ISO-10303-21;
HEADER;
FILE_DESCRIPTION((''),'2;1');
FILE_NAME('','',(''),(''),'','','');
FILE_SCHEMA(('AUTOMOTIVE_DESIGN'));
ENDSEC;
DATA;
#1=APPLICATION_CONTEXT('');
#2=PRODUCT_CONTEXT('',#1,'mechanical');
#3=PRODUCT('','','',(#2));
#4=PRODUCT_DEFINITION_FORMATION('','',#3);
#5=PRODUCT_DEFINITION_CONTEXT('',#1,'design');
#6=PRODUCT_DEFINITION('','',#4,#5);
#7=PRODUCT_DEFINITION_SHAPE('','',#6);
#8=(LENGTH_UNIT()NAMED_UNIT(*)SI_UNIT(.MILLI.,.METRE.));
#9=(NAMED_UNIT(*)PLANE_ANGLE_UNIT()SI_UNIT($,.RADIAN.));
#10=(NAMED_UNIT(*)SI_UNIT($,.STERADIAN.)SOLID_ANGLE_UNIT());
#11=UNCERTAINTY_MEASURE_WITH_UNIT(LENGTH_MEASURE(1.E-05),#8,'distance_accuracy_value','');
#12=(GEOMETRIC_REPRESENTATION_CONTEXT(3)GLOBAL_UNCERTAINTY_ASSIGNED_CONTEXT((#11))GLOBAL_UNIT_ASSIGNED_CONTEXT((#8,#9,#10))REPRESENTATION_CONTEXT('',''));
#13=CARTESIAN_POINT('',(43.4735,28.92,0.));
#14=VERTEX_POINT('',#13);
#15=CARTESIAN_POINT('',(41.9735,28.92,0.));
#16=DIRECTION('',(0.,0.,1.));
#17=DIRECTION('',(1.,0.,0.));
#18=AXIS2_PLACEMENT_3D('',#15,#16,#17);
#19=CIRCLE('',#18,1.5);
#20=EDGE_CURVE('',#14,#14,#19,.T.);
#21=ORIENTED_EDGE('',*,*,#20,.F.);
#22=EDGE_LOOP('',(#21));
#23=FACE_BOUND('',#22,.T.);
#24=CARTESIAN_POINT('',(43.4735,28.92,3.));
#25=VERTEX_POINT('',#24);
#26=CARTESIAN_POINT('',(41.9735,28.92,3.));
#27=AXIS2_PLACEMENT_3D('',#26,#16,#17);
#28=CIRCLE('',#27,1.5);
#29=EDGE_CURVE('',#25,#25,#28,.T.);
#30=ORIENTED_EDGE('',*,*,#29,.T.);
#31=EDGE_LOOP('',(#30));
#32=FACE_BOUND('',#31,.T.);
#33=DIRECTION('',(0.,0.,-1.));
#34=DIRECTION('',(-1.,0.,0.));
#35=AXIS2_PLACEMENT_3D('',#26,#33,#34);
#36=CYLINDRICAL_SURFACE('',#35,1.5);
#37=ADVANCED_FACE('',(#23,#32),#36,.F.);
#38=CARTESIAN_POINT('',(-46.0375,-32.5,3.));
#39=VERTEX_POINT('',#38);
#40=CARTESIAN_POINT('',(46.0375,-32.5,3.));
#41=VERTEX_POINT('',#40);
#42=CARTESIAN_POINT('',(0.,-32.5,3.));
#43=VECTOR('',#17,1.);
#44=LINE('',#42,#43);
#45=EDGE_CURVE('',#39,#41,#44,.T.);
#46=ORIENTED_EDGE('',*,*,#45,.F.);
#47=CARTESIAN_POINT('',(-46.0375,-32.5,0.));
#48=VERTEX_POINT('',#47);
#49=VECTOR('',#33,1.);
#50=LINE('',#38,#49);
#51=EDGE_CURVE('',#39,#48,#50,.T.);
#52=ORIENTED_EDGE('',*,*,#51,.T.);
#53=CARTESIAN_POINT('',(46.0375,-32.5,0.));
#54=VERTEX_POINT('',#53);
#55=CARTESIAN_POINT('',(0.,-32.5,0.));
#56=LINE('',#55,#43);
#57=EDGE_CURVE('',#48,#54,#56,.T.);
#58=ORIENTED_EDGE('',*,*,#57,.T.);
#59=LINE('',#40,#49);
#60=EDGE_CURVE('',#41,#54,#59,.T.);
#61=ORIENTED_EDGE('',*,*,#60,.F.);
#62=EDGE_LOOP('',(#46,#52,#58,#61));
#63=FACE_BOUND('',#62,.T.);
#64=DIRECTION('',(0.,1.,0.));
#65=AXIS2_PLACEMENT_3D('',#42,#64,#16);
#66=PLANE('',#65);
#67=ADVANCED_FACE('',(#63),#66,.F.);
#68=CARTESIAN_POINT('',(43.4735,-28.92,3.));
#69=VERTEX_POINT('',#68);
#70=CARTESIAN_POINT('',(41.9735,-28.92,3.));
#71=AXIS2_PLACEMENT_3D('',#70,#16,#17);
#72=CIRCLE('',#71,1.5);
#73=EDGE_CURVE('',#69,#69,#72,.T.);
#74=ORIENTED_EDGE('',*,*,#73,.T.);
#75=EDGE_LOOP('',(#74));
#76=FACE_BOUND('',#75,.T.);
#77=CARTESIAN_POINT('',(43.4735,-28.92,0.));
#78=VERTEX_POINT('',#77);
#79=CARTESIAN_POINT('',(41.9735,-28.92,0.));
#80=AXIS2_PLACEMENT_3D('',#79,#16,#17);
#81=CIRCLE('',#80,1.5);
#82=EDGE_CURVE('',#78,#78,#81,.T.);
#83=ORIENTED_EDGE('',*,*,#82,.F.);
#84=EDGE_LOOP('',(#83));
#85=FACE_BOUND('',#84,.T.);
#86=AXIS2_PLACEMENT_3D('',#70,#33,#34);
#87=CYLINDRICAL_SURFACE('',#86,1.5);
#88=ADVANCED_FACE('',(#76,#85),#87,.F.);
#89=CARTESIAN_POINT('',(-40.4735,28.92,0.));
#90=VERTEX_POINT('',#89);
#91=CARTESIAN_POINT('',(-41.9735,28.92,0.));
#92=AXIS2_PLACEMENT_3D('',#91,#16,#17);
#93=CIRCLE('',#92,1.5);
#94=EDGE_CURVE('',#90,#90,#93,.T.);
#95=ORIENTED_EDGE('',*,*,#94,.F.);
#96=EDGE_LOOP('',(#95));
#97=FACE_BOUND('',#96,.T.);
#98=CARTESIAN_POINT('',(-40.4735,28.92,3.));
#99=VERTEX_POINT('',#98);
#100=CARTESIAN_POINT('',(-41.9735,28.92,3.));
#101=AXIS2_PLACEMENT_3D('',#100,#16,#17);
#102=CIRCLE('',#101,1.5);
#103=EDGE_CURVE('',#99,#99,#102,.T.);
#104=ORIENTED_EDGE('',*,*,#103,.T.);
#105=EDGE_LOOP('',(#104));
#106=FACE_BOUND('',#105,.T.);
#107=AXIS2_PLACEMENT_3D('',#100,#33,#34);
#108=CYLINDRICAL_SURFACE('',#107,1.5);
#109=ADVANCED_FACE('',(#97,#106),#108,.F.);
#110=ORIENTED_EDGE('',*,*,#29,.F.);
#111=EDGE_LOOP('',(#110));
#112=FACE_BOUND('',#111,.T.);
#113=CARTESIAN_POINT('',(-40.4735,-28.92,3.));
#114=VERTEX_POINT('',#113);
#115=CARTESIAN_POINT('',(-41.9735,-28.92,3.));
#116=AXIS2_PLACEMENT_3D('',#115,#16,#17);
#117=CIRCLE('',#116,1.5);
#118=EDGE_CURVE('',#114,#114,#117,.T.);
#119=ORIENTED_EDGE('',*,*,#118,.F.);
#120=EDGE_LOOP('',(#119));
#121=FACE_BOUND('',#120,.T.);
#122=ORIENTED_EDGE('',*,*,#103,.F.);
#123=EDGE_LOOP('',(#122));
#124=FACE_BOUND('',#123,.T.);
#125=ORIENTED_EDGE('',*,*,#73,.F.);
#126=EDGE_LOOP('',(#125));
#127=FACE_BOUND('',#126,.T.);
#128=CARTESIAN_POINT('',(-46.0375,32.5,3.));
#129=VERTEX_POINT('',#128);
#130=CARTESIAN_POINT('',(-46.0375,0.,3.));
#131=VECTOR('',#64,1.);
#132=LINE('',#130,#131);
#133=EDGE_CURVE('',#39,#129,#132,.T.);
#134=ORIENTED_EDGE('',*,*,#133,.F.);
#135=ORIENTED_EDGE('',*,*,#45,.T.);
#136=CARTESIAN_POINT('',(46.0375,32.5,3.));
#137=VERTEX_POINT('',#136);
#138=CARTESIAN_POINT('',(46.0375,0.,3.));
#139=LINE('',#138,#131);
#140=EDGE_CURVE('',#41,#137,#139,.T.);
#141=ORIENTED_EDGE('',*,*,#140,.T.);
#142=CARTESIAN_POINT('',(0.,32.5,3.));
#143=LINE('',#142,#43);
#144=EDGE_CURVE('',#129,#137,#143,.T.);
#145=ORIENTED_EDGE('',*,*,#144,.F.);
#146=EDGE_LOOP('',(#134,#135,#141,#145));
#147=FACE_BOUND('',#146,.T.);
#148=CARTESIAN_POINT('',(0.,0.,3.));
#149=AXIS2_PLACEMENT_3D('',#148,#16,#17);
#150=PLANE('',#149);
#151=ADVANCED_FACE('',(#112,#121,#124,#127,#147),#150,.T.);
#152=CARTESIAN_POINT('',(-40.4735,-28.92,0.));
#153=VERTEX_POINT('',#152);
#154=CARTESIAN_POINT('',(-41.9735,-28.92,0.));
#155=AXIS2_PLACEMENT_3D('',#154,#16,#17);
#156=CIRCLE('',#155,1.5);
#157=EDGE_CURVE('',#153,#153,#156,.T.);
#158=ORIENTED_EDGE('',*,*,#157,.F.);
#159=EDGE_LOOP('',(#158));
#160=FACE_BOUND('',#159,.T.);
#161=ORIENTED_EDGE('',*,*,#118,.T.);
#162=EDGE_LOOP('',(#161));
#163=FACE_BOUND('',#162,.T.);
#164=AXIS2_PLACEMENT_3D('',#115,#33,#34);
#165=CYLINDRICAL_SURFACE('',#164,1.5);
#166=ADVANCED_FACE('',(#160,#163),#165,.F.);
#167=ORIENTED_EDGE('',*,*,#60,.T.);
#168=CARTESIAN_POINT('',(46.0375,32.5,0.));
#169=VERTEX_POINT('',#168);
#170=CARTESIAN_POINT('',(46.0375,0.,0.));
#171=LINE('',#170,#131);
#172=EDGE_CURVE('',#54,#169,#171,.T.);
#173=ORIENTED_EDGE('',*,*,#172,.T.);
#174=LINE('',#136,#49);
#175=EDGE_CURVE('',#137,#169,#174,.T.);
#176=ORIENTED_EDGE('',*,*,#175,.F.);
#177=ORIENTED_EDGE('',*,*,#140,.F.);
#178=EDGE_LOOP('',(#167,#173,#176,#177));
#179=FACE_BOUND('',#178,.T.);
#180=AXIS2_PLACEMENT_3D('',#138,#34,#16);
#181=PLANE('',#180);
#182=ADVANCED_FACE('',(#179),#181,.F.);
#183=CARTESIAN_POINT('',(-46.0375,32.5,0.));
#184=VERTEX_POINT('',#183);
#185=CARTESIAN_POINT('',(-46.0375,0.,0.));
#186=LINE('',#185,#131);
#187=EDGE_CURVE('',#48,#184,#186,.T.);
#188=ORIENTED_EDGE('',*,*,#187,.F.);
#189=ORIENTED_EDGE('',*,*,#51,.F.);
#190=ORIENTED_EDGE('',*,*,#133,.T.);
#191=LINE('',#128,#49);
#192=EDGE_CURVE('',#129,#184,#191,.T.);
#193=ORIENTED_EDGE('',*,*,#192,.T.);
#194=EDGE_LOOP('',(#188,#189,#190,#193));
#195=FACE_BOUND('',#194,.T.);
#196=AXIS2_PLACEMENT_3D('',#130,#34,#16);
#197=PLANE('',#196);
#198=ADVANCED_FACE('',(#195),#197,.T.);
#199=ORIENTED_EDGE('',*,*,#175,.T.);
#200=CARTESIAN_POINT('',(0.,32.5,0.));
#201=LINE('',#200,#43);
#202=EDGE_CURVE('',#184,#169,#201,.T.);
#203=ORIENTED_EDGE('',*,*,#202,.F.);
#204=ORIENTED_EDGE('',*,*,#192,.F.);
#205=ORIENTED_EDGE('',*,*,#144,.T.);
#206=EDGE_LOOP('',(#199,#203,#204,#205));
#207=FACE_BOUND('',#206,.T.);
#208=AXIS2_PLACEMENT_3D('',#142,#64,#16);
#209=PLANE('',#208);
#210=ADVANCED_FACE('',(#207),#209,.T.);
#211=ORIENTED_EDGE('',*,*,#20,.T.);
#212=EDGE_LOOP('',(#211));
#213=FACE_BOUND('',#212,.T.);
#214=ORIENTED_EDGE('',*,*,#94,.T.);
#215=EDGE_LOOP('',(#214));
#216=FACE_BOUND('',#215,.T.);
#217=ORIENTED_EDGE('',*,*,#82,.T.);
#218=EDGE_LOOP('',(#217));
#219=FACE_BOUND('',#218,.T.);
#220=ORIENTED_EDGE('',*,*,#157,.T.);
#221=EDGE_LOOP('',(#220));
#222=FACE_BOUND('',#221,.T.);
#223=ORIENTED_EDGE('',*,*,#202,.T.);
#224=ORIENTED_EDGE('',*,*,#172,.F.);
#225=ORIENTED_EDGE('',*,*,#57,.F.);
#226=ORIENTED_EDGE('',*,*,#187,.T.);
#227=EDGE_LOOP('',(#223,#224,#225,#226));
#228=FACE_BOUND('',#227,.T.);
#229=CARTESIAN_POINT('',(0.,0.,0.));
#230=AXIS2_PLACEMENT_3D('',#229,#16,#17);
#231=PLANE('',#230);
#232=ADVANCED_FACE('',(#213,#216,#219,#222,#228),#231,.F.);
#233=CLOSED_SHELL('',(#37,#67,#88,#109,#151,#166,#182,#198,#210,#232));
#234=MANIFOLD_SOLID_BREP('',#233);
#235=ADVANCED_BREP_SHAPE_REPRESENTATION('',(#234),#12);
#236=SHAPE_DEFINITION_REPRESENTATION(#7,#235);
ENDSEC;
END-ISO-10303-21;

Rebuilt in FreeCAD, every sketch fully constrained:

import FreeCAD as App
import Part
import Sketcher

V = App.Vector


def add_polygon(sketch, points):
    """Adds a closed chain of lines whose ends are joined by coincident constraints."""
    first, n = sketch.GeometryCount, len(points)
    for a, b in zip(points, points[1:] + points[:1]):
        sketch.addGeometry(Part.LineSegment(App.Vector(*a, 0), App.Vector(*b, 0)), False)
    for i in range(n):
        sketch.addConstraint(Sketcher.Constraint("Coincident", first + i, 2, first + (i + 1) % n, 1))

doc = App.newDocument("Part")
params = doc.addObject("Spreadsheet::Sheet", "Params")
for row, (alias, value) in enumerate([
    ("sketch1_diameter", "3 mm"),
    ("sketch1_height", "65 mm"),
    ("pad1_length", "3 mm"),
], start=1):
    params.set(f"A{row}", alias)
    params.set(f"B{row}", "=" + value)
    params.setAlias(f"B{row}", alias)

body = doc.addObject("PartDesign::Body", "Body")

# Sketch on XY plane
sketch1 = body.newObject("Sketcher::SketchObject", "Sketch")
sketch1.AttachmentSupport = (doc.getObject("XY_Plane"), [""])
sketch1.MapMode = "FlatFace"
add_polygon(sketch1, [(-46.0375, 32.5), (-46.0375, -32.5), (46.0375, -32.5), (46.0375, 32.5)])  # lines 0-3
sketch1.addGeometry(Part.Circle(V(-41.9735, -28.92, 0), V(0, 0, 1), 1.5), False)  # 4
sketch1.addGeometry(Part.Circle(V(41.9735, -28.92, 0), V(0, 0, 1), 1.5), False)  # 5
sketch1.addGeometry(Part.Circle(V(-41.9735, 28.92, 0), V(0, 0, 1), 1.5), False)  # 6
sketch1.addGeometry(Part.Circle(V(41.9735, 28.92, 0), V(0, 0, 1), 1.5), False)  # 7
sketch1.addConstraint([
    Sketcher.Constraint("Vertical", 0),
    Sketcher.Constraint("Horizontal", 1),
    Sketcher.Constraint("Vertical", 2),
    Sketcher.Constraint("Horizontal", 3),
    Sketcher.Constraint("Equal", 4, 5),
    Sketcher.Constraint("Equal", 5, 6),
    Sketcher.Constraint("Equal", 6, 7),
    Sketcher.Constraint("Symmetric", 5, 3, 6, 3, -1, 1),
    Sketcher.Constraint("Symmetric", 4, 3, 7, 3, -1, 1),
    Sketcher.Constraint("Symmetric", 0, 2, 2, 2, -1, 1),
    Sketcher.Constraint("Symmetric", 4, 3, 5, 3, -2),
    Sketcher.Constraint("Diameter", 4, 3.0),
    Sketcher.Constraint("DistanceY", 0, 2, 0, 1, 65.0),
    Sketcher.Constraint("DistanceX", 1, 1, 1, 2, 92.075),
    Sketcher.Constraint("DistanceY", 4, 3, -1, 1, 28.92),
    Sketcher.Constraint("DistanceX", 4, 3, 5, 3, 83.947),
])
sketch1.setExpression("Constraints[15]", "Params.sketch1_diameter")
sketch1.setExpression("Constraints[16]", "Params.sketch1_height")
pad1 = body.newObject("PartDesign::Pad", "Pad")
pad1.Profile = sketch1
pad1.setExpression("Length", "Params.pad1_length")

doc.recompute()
